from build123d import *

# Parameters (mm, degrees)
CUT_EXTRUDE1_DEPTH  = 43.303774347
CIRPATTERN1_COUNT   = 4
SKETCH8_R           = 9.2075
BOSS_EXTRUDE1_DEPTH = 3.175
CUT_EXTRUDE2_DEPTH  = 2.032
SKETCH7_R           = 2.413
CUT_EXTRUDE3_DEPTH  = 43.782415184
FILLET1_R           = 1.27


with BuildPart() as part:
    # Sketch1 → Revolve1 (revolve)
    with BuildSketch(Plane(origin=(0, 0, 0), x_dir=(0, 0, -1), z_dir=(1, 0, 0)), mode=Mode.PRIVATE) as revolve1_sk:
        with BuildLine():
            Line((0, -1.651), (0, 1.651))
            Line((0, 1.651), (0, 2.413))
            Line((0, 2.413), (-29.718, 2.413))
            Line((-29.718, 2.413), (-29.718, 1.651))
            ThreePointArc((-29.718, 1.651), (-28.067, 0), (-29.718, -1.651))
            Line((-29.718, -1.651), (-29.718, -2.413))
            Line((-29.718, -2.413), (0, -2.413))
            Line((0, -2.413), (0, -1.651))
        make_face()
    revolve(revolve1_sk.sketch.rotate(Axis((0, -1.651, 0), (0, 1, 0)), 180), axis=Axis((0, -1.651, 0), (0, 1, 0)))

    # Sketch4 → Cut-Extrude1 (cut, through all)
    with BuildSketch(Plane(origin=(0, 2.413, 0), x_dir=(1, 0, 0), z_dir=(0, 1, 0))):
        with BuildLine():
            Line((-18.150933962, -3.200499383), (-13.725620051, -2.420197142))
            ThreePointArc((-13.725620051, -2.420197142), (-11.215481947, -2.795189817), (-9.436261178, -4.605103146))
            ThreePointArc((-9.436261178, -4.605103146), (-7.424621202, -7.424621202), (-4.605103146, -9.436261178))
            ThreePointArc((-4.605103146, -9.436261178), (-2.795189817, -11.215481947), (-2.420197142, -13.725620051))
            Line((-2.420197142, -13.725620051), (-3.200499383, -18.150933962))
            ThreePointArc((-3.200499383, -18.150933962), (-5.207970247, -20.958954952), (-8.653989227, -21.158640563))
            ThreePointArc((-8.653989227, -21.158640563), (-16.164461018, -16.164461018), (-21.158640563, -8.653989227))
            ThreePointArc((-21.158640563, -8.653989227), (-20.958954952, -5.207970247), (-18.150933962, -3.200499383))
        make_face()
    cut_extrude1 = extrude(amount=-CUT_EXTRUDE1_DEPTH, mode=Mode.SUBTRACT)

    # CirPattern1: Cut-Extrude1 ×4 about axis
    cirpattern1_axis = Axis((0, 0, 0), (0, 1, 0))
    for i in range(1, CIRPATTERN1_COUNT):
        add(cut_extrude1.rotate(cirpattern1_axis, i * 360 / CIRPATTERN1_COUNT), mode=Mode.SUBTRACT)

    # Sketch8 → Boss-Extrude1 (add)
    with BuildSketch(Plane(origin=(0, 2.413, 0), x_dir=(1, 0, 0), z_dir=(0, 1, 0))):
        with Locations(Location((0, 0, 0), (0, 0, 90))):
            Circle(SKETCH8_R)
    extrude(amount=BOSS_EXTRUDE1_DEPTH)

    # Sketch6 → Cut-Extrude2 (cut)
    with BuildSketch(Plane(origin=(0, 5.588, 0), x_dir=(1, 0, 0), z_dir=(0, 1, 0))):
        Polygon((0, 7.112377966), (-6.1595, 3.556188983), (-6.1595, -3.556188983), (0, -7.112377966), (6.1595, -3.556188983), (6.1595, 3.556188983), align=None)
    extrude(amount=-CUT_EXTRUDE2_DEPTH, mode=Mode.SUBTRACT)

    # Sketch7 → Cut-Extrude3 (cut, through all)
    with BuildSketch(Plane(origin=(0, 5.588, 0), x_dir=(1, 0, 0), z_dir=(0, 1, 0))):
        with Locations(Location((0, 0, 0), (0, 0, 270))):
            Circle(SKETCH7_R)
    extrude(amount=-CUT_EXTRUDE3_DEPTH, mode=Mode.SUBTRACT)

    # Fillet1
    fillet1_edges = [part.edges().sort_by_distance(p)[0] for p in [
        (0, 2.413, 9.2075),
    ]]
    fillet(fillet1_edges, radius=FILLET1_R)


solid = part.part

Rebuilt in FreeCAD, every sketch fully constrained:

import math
import FreeCAD as App
import Part
import Sketcher

V = App.Vector
Q = App.Units.Quantity


def edges_at(feature, points):
    """Names of the edges that pass closest to the given points."""
    edges = feature.Shape.Edges
    near = lambda p: min(range(len(edges)), key=lambda i: edges[i].distToShape(Part.Vertex(*p))[0])
    return sorted({f"Edge{near(p) + 1}" for p in points})


def add_polygon(sketch, points):
    """Adds a closed chain of lines whose ends are joined by coincident constraints."""
    first, n = sketch.GeometryCount, len(points)
    for a, b in zip(points, points[1:] + points[:1]):
        sketch.addGeometry(Part.LineSegment(App.Vector(*a, 0), App.Vector(*b, 0)), False)
    for i in range(n):
        sketch.addConstraint(Sketcher.Constraint("Coincident", first + i, 2, first + (i + 1) % n, 1))

doc = App.newDocument("Part")
params = doc.addObject("Spreadsheet::Sheet", "Params")
for row, (alias, value) in enumerate([
    ("sketch1_radius", "0.065 in"),
    ("sketch1_width", "0.03 in"),
    ("sketch1_height", "1.17 in"),
    ("revolution_angle", "360 deg"),
    ("sketch2_radius", "0.9 in"),
    ("sketch3_diameter", "0.725 in"),
    ("pad1_length", "0.125 in"),
    ("pocket2_length", "0.08 in"),
    ("sketch5_diameter", "0.19 in"),
    ("fillet_radius", "0.05 in"),
], start=1):
    params.set(f"A{row}", alias)
    params.set(f"B{row}", "=" + value)
    params.setAlias(f"B{row}", alias)

body = doc.addObject("PartDesign::Body", "Body")

# Sketch on YZ plane
sketch1 = body.newObject("Sketcher::SketchObject", "Sketch")
sketch1.AttachmentSupport = (doc.getObject("YZ_Plane"), [""])
sketch1.MapMode = "FlatFace"
sketch1.addGeometry(Part.LineSegment(V(2.4, 0, 0), V(2.4, 29.7, 0)), False)
sketch1.addGeometry(Part.LineSegment(V(2.4, 29.7, 0), V(1.7, 29.7, 0)), False)
sketch1.addGeometry(Part.ArcOfCircle(Part.Circle(V(0, 29.7, 0), V(0, 0, 1), 1.7), math.radians(180), math.radians(360)), False)
sketch1.addGeometry(Part.LineSegment(V(-1.7, 29.7, 0), V(-2.4, 29.7, 0)), False)
sketch1.addGeometry(Part.LineSegment(V(-2.4, 29.7, 0), V(-2.4, 0, 0)), False)
sketch1.addGeometry(Part.LineSegment(V(-2.4, 0, 0), V(2.4, 0, 0)), False)
sketch1.addConstraint(Sketcher.Constraint("Coincident", 0, 2, 1, 1))
sketch1.addConstraint(Sketcher.Constraint("Coincident", 1, 2, 2, 2))
sketch1.addConstraint(Sketcher.Constraint("Coincident", 2, 1, 3, 1))
sketch1.addConstraint(Sketcher.Constraint("Coincident", 3, 2, 4, 1))
sketch1.addConstraint(Sketcher.Constraint("Coincident", 4, 2, 5, 1))
sketch1.addConstraint(Sketcher.Constraint("Coincident", 5, 2, 0, 1))
sketch1.addConstraint(Sketcher.Constraint("Vertical", 0))
sketch1.addConstraint(Sketcher.Constraint("Horizontal", 1))
sketch1.addConstraint(Sketcher.Constraint("Horizontal", 3))
sketch1.addConstraint(Sketcher.Constraint("Vertical", 4))
sketch1.addConstraint(Sketcher.Constraint("Horizontal", 5))
sketch1.addConstraint(Sketcher.Constraint("Symmetric", 4, 2, 5, 2, -1, 1))
sketch1.addConstraint(Sketcher.Constraint("Symmetric", 1, 2, 2, 1, -2))
sketch1.addConstraint(Sketcher.Constraint("Horizontal", 2, 3, 0, 2))
sketch1.addConstraint(Sketcher.Constraint("Radius", 2, Q("0.065 in")))
sketch1.addConstraint(Sketcher.Constraint("DistanceX", 1, 2, 1, 1, Q("0.03 in")))
sketch1.addConstraint(Sketcher.Constraint("DistanceY", 0, 1, 0, 2, Q("1.17 in")))
sketch1.setExpression("Constraints[14]", "Params.sketch1_radius")
sketch1.setExpression("Constraints[15]", "Params.sketch1_width")
sketch1.setExpression("Constraints[16]", "Params.sketch1_height")
revolution = body.newObject("PartDesign::Revolution", "Revolution")
revolution.Profile = sketch1
revolution.ReferenceAxis = (sketch1, ["H_Axis"])
revolution.setExpression("Angle", "Params.revolution_angle")

# Sketch on XZ plane
sketch2 = body.newObject("Sketcher::SketchObject", "Sketch001")
sketch2.AttachmentSupport = (doc.getObject("XZ_Plane"), [""])
sketch2.MapMode = "FlatFace"
sketch2.AttachmentOffset = App.Placement(V(0, 0, -0.095 * 25.4), App.Rotation())
sketch2.addGeometry(Part.LineSegment(V(-13.7, 2.4, 0), V(-18.2, 3.2, 0)), False)
sketch2.addGeometry(Part.ArcOfCircle(Part.Circle(V(-17.5, 7.1, 0), V(0, 0, 1), 4), math.radians(158), math.radians(260)), False)
sketch2.addGeometry(Part.ArcOfCircle(Part.Circle(V(0, 0, 0), V(0, 0, 1), 22.9), math.radians(112), math.radians(158)), False)
sketch2.addGeometry(Part.ArcOfCircle(Part.Circle(V(-7.1, 17.5, 0), V(0, 0, 1), 4), math.radians(10), math.radians(112)), False)
sketch2.addGeometry(Part.LineSegment(V(-3.2, 18.2, 0), V(-2.4, 13.7, 0)), False)
sketch2.addGeometry(Part.ArcOfCircle(Part.Circle(V(-6.4, 13, 0), V(0, 0, 1), 4), math.radians(-64), math.radians(10)), False)
sketch2.addGeometry(Part.ArcOfCircle(Part.Circle(V(0, 0, 0), V(0, 0, 1), 10.5), math.radians(116), math.radians(154)), False)
sketch2.addGeometry(Part.ArcOfCircle(Part.Circle(V(-13, 6.4, 0), V(0, 0, 1), 4), math.radians(-100), math.radians(-26)), False)
sketch2.addConstraint(Sketcher.Constraint("Tangent", 0, 2, 1, 2))
sketch2.addConstraint(Sketcher.Constraint("Tangent", 1, 1, 2, 2))
sketch2.addConstraint(Sketcher.Constraint("Tangent", 2, 1, 3, 2))
sketch2.addConstraint(Sketcher.Constraint("Tangent", 3, 1, 4, 1))
sketch2.addConstraint(Sketcher.Constraint("Tangent", 4, 2, 5, 2))
sketch2.addConstraint(Sketcher.Constraint("Tangent", 5, 1, 6, 1))
sketch2.addConstraint(Sketcher.Constraint("Tangent", 6, 2, 7, 2))
sketch2.addConstraint(Sketcher.Constraint("Tangent", 7, 1, 0, 1))
sketch2.addConstraint(Sketcher.Constraint("Coincident", 2, 3, -1, 1))
sketch2.addConstraint(Sketcher.Constraint("Coincident", 6, 3, -1, 1))
sketch2.addConstraint(Sketcher.Constraint("Equal", 1, 3))
sketch2.addConstraint(Sketcher.Constraint("Equal", 3, 5))
sketch2.addConstraint(Sketcher.Constraint("Equal", 5, 7))
sketch2.addConstraint(Sketcher.Constraint("Equal", 0, 4))
sketch2.addConstraint(Sketcher.Constraint("Radius", 2, Q("0.9 in")))
sketch2.addConstraint(Sketcher.Constraint("Angle", 0, Q("170 deg")))
sketch2.addConstraint(Sketcher.Constraint("Angle", 4, Q("-80 deg")))
sketch2.addConstraint(Sketcher.Constraint("Radius", 1, 4.0))
sketch2.addConstraint(Sketcher.Constraint("Radius", 6, 10.5))
sketch2.addConstraint(Sketcher.Constraint("DistanceY", -1, 1, 0, 2, 3.200499))
sketch2.setExpression("Constraints[14]", "Params.sketch2_radius")
pocket1 = body.newObject("PartDesign::Pocket", "Pocket")
pocket1.Profile = sketch2
pocket1.Type = "ThroughAll"
pocket1.Reversed = True
doc.recompute()

polarpattern = body.newObject("PartDesign::PolarPattern", "PolarPattern")
polarpattern.Originals = [pocket1]
polarpattern.Axis = (doc.getObject("Y_Axis"), [""])
polarpattern.Angle = 360
polarpattern.Occurrences = 4
body.Tip = polarpattern

# Sketch on XZ plane
sketch3 = body.newObject("Sketcher::SketchObject", "Sketch002")
sketch3.AttachmentSupport = (doc.getObject("XZ_Plane"), [""])
sketch3.MapMode = "FlatFace"
sketch3.AttachmentOffset = App.Placement(V(0, 0, -0.095 * 25.4), App.Rotation())
sketch3.addGeometry(Part.Circle(V(0, 0, 0), V(0, 0, 1), 9), False)
sketch3.addConstraint(Sketcher.Constraint("Coincident", 0, 3, -1, 1))
sketch3.addConstraint(Sketcher.Constraint("Diameter", 0, Q("0.725 in")))
sketch3.setExpression("Constraints[1]", "Params.sketch3_diameter")
pad1 = body.newObject("PartDesign::Pad", "Pad")
pad1.Profile = sketch3
pad1.setExpression("Length", "Params.pad1_length")
pad1.Reversed = True

# Sketch on XZ plane
sketch4 = body.newObject("Sketcher::SketchObject", "Sketch003")
sketch4.AttachmentSupport = (doc.getObject("XZ_Plane"), [""])
sketch4.MapMode = "FlatFace"
sketch4.AttachmentOffset = App.Placement(V(0, 0, -0.22 * 25.4), App.Rotation())
add_polygon(sketch4, [(0, -7), (-6, -4), (-6, 4), (0, 7), (6, 4), (6, -4)])  # lines 0-5
sketch4.addConstraint(Sketcher.Constraint("Vertical", 1))
sketch4.addConstraint(Sketcher.Constraint("Vertical", 4))
sketch4.addConstraint(Sketcher.Constraint("Symmetric", 0, 2, 3, 2, -1, 1))
sketch4.addConstraint(Sketcher.Constraint("Symmetric", 2, 2, 5, 2, -1, 1))
sketch4.addConstraint(Sketcher.Constraint("PointOnObject", 2, 2, -2))
sketch4.addConstraint(Sketcher.Constraint("Parallel", 2, 5))
sketch4.addConstraint(Sketcher.Constraint("Horizontal", 1, 2, 3, 2))
sketch4.addConstraint(Sketcher.Constraint("Angle", 0, Q("150 deg")))
sketch4.addConstraint(Sketcher.Constraint("DistanceX", 1, 2, 3, 2, Q("0.485 in")))
sketch4.addConstraint(Sketcher.Constraint("DistanceY", 1, 1, 1, 2, 7.112378))
pocket2 = body.newObject("PartDesign::Pocket", "Pocket001")
pocket2.Profile = sketch4
pocket2.setExpression("Length", "Params.pocket2_length")
pocket2.Reversed = True

# Sketch on XZ plane
sketch5 = body.newObject("Sketcher::SketchObject", "Sketch004")
sketch5.AttachmentSupport = (doc.getObject("XZ_Plane"), [""])
sketch5.MapMode = "FlatFace"
sketch5.AttachmentOffset = App.Placement(V(0, 0, -0.22 * 25.4), App.Rotation())
sketch5.addGeometry(Part.Circle(V(0, 0, 0), V(0, 0, 1), 2.4), False)
sketch5.addConstraint(Sketcher.Constraint("Coincident", 0, 3, -1, 1))
sketch5.addConstraint(Sketcher.Constraint("Diameter", 0, Q("0.19 in")))
sketch5.setExpression("Constraints[1]", "Params.sketch5_diameter")
pocket3 = body.newObject("PartDesign::Pocket", "Pocket002")
pocket3.Profile = sketch5
pocket3.Type = "ThroughAll"
pocket3.Reversed = True
doc.recompute()

fillet = body.newObject("PartDesign::Fillet", "Fillet")
fillet.Base = (pocket3, edges_at(pocket3, [(0, 2.413, 9.207)]))
fillet.setExpression("Radius", "Params.fillet_radius")

doc.recompute()
